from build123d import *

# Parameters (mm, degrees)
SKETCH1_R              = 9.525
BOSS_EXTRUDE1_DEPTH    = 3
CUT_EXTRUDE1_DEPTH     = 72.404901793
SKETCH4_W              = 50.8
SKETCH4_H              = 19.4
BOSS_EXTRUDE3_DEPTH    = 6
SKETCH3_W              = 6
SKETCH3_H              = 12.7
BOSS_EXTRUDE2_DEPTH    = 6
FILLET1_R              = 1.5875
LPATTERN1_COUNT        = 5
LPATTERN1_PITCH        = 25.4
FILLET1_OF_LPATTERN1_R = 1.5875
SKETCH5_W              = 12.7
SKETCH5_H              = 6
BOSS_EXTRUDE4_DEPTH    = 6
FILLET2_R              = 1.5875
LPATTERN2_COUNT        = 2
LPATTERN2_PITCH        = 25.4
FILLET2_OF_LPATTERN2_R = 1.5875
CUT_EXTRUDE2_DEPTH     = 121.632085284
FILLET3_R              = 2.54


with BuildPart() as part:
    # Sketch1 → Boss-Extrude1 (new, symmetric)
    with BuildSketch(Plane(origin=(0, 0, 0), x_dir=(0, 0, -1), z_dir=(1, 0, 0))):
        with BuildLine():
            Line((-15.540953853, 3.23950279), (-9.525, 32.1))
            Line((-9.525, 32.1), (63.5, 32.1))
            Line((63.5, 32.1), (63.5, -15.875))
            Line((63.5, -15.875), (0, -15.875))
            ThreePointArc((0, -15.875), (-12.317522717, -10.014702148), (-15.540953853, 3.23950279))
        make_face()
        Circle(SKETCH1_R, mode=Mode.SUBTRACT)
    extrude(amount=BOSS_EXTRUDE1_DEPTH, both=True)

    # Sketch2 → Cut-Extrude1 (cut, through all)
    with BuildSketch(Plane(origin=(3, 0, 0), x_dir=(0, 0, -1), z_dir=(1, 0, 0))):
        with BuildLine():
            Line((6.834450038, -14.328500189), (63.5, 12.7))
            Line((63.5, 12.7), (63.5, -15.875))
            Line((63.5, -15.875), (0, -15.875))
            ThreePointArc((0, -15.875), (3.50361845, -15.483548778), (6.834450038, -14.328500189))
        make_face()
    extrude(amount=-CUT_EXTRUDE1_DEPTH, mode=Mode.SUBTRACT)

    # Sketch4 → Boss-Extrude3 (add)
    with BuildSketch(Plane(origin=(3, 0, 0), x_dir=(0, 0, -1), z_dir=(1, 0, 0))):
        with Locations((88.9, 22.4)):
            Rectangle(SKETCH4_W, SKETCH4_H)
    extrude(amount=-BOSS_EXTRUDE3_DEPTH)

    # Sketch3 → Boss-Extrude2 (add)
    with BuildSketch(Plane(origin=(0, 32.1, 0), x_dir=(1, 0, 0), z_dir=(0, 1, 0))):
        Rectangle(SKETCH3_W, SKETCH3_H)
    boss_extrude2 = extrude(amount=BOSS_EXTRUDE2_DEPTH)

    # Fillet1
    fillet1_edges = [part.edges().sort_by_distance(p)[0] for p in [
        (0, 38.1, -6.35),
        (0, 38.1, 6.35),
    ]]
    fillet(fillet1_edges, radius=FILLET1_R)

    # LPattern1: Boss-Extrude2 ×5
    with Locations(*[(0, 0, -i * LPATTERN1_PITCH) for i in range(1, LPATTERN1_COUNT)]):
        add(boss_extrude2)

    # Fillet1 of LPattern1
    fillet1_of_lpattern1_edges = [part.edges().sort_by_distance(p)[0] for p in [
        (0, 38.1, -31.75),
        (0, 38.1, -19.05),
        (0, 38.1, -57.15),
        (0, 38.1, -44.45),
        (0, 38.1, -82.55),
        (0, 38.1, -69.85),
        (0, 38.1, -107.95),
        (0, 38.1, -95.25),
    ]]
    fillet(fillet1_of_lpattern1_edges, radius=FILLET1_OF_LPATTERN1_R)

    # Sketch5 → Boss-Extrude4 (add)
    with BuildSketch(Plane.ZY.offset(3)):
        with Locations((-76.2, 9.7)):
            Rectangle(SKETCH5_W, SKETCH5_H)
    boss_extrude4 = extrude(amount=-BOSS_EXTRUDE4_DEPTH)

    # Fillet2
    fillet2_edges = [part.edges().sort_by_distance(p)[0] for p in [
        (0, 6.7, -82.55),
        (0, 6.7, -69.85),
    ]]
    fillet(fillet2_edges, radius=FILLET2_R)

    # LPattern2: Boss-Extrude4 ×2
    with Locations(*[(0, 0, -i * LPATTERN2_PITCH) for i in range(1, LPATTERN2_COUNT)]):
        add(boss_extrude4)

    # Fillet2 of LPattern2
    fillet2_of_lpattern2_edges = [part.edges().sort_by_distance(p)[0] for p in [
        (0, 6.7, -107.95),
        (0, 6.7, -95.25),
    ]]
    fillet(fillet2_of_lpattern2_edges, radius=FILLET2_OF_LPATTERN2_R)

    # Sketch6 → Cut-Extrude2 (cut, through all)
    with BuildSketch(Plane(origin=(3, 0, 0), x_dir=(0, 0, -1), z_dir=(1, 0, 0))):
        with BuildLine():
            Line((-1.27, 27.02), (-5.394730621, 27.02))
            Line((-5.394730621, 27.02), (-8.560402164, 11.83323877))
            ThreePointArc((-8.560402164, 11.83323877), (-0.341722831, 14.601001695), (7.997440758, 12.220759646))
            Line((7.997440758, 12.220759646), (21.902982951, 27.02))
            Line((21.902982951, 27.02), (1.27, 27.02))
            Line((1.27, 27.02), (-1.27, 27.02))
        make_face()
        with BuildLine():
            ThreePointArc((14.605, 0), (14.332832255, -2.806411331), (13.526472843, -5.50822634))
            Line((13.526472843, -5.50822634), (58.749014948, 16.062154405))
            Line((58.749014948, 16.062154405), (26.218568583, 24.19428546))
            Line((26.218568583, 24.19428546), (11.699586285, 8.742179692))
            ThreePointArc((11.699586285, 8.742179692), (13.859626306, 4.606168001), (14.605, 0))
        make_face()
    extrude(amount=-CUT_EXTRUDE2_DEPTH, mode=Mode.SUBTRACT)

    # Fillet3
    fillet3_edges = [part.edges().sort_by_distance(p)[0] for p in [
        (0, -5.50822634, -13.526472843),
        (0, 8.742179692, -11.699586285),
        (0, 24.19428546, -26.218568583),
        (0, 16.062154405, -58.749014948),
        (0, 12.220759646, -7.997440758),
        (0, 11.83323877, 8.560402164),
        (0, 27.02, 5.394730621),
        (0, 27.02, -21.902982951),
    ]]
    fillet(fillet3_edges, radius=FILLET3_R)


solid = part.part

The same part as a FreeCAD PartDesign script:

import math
import FreeCAD as App
import Part
import Sketcher
from FreeCAD import Vector
Q = App.Units.Quantity


def edges_at(feature, points):
    """Names of the edges that pass closest to the given points."""
    edges = feature.Shape.Edges
    near = lambda p: min(range(len(edges)), key=lambda i: edges[i].distToShape(Part.Vertex(*p))[0])
    return sorted({f"Edge{near(p) + 1}" for p in points})


def add_polygon(sketch, points):
    """Adds a closed chain of lines whose ends are joined by coincident constraints."""
    first, n = sketch.GeometryCount, len(points)
    for a, b in zip(points, points[1:] + points[:1]):
        sketch.addGeometry(Part.LineSegment(App.Vector(*a, 0), App.Vector(*b, 0)), False)
    for i in range(n):
        sketch.addConstraint(Sketcher.Constraint("Coincident", first + i, 2, first + (i + 1) % n, 1))

doc = App.newDocument("Part")
body = doc.addObject("PartDesign::Body", "Body")

# Sketch on YZ plane
sketch1 = doc.addObject("Sketcher::SketchObject", "Sketch")
body.addObject(sketch1)
sketch1.AttachmentSupport = (doc.YZ_Plane, [""])
sketch1.MapMode = "FlatFace"
sketch1.addGeometry([
    Part.LineSegment(Vector(32, 10, 0), Vector(3, 16, 0)),  # 0
    Part.ArcOfCircle(Part.Circle(Vector(0, 0, 0), Vector(0, 0, 1), 16), math.radians(78), math.radians(180)),  # 1
    Part.LineSegment(Vector(-16, 0, 0), Vector(-16, -64, 0)),  # 2
    Part.LineSegment(Vector(-16, -64, 0), Vector(32, -64, 0)),  # 3
    Part.LineSegment(Vector(32, -64, 0), Vector(32, 10, 0)),  # 4
    Part.Circle(Vector(0, 0, 0), Vector(0, 0, 1), 10),  # 5
], False)
sketch1.addConstraint([
    Sketcher.Constraint("Tangent", 0, 2, 1, 1),
    Sketcher.Constraint("Tangent", 1, 2, 2, 1),
    Sketcher.Constraint("Coincident", 2, 2, 3, 1),
    Sketcher.Constraint("Coincident", 3, 2, 4, 1),
    Sketcher.Constraint("Coincident", 4, 2, 0, 1),
    Sketcher.Constraint("Vertical", 2),
    Sketcher.Constraint("Horizontal", 3),
    Sketcher.Constraint("Vertical", 4),
    Sketcher.Constraint("Coincident", 1, 3, -1, 1),
    Sketcher.Constraint("Coincident", 5, 3, -1, 1),
    Sketcher.Constraint("Diameter", 5, Q("0.75 in")),
    Sketcher.Constraint("DistanceY", 2, 2, 2, 1, Q("2.5 in")),
    Sketcher.Constraint("Radius", 1, Q("0.625 in")),
    Sketcher.Constraint("DistanceY", 4, 1, 4, 2, Q("2.875 in")),
    Sketcher.Constraint("DistanceX", 3, 1, 3, 2, Q("47.975 mm")),
])
pad1 = doc.addObject("PartDesign::Pad", "Pad")
body.addObject(pad1)
pad1.Profile = sketch1
pad1.Length = 6
pad1.Midplane = True

# Sketch on YZ plane
sketch2 = doc.addObject("Sketcher::SketchObject", "Sketch001")
body.addObject(sketch2)
sketch2.AttachmentSupport = (doc.YZ_Plane, [""])
sketch2.MapMode = "FlatFace"
sketch2.AttachmentOffset = App.Placement(Vector(0, 0, 3), App.Rotation())
sketch2.addGeometry([
    Part.LineSegment(Vector(13, -64, 0), Vector(-14, -7, 0)),
    Part.ArcOfCircle(Part.Circle(Vector(0, 0, 0), Vector(0, 0, 1), 16), math.radians(180), math.radians(206)),
    Part.LineSegment(Vector(-16, 0, 0), Vector(-16, -64, 0)),
    Part.LineSegment(Vector(-16, -64, 0), Vector(13, -64, 0)),
], False)
sketch2.addConstraint([
    Sketcher.Constraint("Tangent", 0, 2, 1, 2),
    Sketcher.Constraint("Tangent", 1, 1, 2, 1),
    Sketcher.Constraint("Coincident", 2, 2, 3, 1),
    Sketcher.Constraint("Coincident", 3, 2, 0, 1),
    Sketcher.Constraint("Vertical", 2),
    Sketcher.Constraint("Horizontal", 3),
    Sketcher.Constraint("Coincident", 1, 3, -1, 1),
    Sketcher.Constraint("DistanceY", 2, 2, 2, 1, Q("2.5 in")),
    Sketcher.Constraint("Radius", 1, Q("0.625 in")),
    Sketcher.Constraint("DistanceX", -1, 1, 3, 2, Q("0.5 in")),
])
pocket1 = doc.addObject("PartDesign::Pocket", "Pocket")
body.addObject(pocket1)
pocket1.Profile = sketch2
pocket1.Type = "ThroughAll"

# Sketch on YZ plane
sketch3 = doc.addObject("Sketcher::SketchObject", "Sketch002")
body.addObject(sketch3)
sketch3.AttachmentSupport = (doc.YZ_Plane, [""])
sketch3.MapMode = "FlatFace"
sketch3.AttachmentOffset = App.Placement(Vector(0, 0, 3), App.Rotation())
add_polygon(sketch3, [(32, -64), (13, -64), (13, -114), (32, -114)])  # lines 0-3
sketch3.addConstraint([
    Sketcher.Constraint("Horizontal", 0),
    Sketcher.Constraint("Vertical", 1),
    Sketcher.Constraint("Horizontal", 2),
    Sketcher.Constraint("Vertical", 3),
    Sketcher.Constraint("DistanceY", 1, 2, 1, 1, Q("2 in")),
    Sketcher.Constraint("DistanceX", -1, 1, 0, 2, Q("0.5 in")),
    Sketcher.Constraint("DistanceY", 0, 2, -1, 1, Q("2.5 in")),
    Sketcher.Constraint("DistanceX", 0, 2, 0, 1, Q("19.4 mm")),
])
pad2 = doc.addObject("PartDesign::Pad", "Pad001")
body.addObject(pad2)
pad2.Profile = sketch3
pad2.Length = 6
pad2.Reversed = True

# Sketch on XZ plane
sketch4 = doc.addObject("Sketcher::SketchObject", "Sketch003")
body.addObject(sketch4)
sketch4.AttachmentSupport = (doc.XZ_Plane, [""])
sketch4.MapMode = "FlatFace"
sketch4.AttachmentOffset = App.Placement(Vector(0, 0, -32.1), App.Rotation())
add_polygon(sketch4, [(-3, -6), (-3, 6), (3, 6), (3, -6)])  # lines 0-3
sketch4.addConstraint([
    Sketcher.Constraint("Vertical", 0),
    Sketcher.Constraint("Horizontal", 1),
    Sketcher.Constraint("Vertical", 2),
    Sketcher.Constraint("Horizontal", 3),
    Sketcher.Constraint("Symmetric", 0, 2, 2, 2, -1, 1),
    Sketcher.Constraint("DistanceY", 0, 1, 0, 2, Q("0.5 in")),
    Sketcher.Constraint("DistanceX", 1, 1, 1, 2, Q("6 mm")),
])
pad3 = doc.addObject("PartDesign::Pad", "Pad002")
body.addObject(pad3)
pad3.Profile = sketch4
pad3.Length = 6
pad3.Reversed = True
doc.recompute()

fillet = doc.addObject("PartDesign::Fillet", "Fillet")
body.addObject(fillet)
fillet.Base = (pad3, edges_at(pad3, [(0, 38.1, -6.35), (0, 38.1, 6.35)]))
fillet.Radius = Q("0.0625 in")
doc.recompute()

linearpattern = doc.addObject("PartDesign::LinearPattern", "LinearPattern")
body.addObject(linearpattern)
linearpattern.Originals = [pad3]
linearpattern.Direction = (doc.Z_Axis, [""])
linearpattern.Mode = "offset"
linearpattern.Offset = Q("1 in")
linearpattern.Occurrences = 5
linearpattern.Reversed = True
body.Tip = linearpattern
doc.recompute()

fillet2 = doc.addObject("PartDesign::Fillet", "Fillet001")
body.addObject(fillet2)
fillet2.Base = (linearpattern, edges_at(linearpattern, [
    (0, 38.1, -31.75),
    (0, 38.1, -19.05),
    (0, 38.1, -57.15),
    (0, 38.1, -44.45),
    (0, 38.1, -82.55),
    (0, 38.1, -69.85),
    (0, 38.1, -107.95),
    (0, 38.1, -95.25),
]))
fillet2.Radius = Q("0.0625 in")

# Sketch on YZ plane
sketch5 = doc.addObject("Sketcher::SketchObject", "Sketch004")
body.addObject(sketch5)
sketch5.AttachmentSupport = (doc.YZ_Plane, [""])
sketch5.MapMode = "FlatFace"
sketch5.AttachmentOffset = App.Placement(Vector(0, 0, -3), App.Rotation())
add_polygon(sketch5, [(13, -83), (7, -83), (7, -70), (13, -70)])  # lines 0-3
sketch5.addConstraint([
    Sketcher.Constraint("Horizontal", 0),
    Sketcher.Constraint("Vertical", 1),
    Sketcher.Constraint("Horizontal", 2),
    Sketcher.Constraint("Vertical", 3),
    Sketcher.Constraint("DistanceY", 1, 1, 1, 2, Q("0.5 in")),
    Sketcher.Constraint("DistanceX", -1, 1, 2, 2, Q("0.5 in")),
    Sketcher.Constraint("DistanceY", 0, 2, -1, 1, Q("3.25 in")),
    Sketcher.Constraint("DistanceX", 0, 2, 0, 1, Q("6 mm")),
])
pad4 = doc.addObject("PartDesign::Pad", "Pad003")
body.addObject(pad4)
pad4.Profile = sketch5
pad4.Length = 6
doc.recompute()

fillet3 = doc.addObject("PartDesign::Fillet", "Fillet002")
body.addObject(fillet3)
fillet3.Base = (pad4, edges_at(pad4, [(0, 6.7, -82.55), (0, 6.7, -69.85)]))
fillet3.Radius = Q("0.0625 in")
doc.recompute()

linearpattern2 = doc.addObject("PartDesign::LinearPattern", "LinearPattern001")
body.addObject(linearpattern2)
linearpattern2.Originals = [pad4]
linearpattern2.Direction = (doc.Z_Axis, [""])
linearpattern2.Mode = "offset"
linearpattern2.Offset = Q("1 in")
linearpattern2.Occurrences = 2
linearpattern2.Reversed = True
body.Tip = linearpattern2
doc.recompute()

fillet4 = doc.addObject("PartDesign::Fillet", "Fillet003")
body.addObject(fillet4)
fillet4.Base = (linearpattern2, edges_at(linearpattern2, [(0, 6.7, -107.95), (0, 6.7, -95.25)]))
fillet4.Radius = Q("0.0625 in")

# Sketch on YZ plane
sketch6 = doc.addObject("Sketcher::SketchObject", "Sketch005")
body.addObject(sketch6)
sketch6.AttachmentSupport = (doc.YZ_Plane, [""])
sketch6.MapMode = "FlatFace"
sketch6.AttachmentOffset = App.Placement(Vector(0, 0, 3), App.Rotation())
sketch6.addGeometry([
    Part.LineSegment(Vector(27, 5, 0), Vector(12, 9, 0)),  # 0
    Part.ArcOfCircle(Part.Circle(Vector(0, 0, 0), Vector(0, 0, 1), 15), math.radians(-33), math.radians(36)),  # 1
    Part.LineSegment(Vector(12, -8, 0), Vector(27, -22, 0)),  # 2
    Part.LineSegment(Vector(27, -22, 0), Vector(27, 5, 0)),  # 3
    Part.ArcOfCircle(Part.Circle(Vector(0, 0, 0), Vector(0, 0, 1), 15), math.radians(-112), math.radians(-90)),  # 4
    Part.LineSegment(Vector(-6, -14, 0), Vector(16, -59, 0)),  # 5
    Part.LineSegment(Vector(16, -59, 0), Vector(24, -26, 0)),  # 6
    Part.LineSegment(Vector(24, -26, 0), Vector(9, -12, 0)),  # 7
    Part.ArcOfCircle(Part.Circle(Vector(0, 0, 0), Vector(0, 0, 1), 15), math.radians(-90), math.radians(-53)),  # 8
], False)
sketch6.addConstraint([
    Sketcher.Constraint("Coincident", 0, 2, 1, 2),
    Sketcher.Constraint("Coincident", 1, 1, 2, 1),
    Sketcher.Constraint("Coincident", 2, 2, 3, 1),
    Sketcher.Constraint("Coincident", 3, 2, 0, 1),
    Sketcher.Constraint("Coincident", 4, 1, 5, 1),
    Sketcher.Constraint("Coincident", 5, 2, 6, 1),
    Sketcher.Constraint("Coincident", 6, 2, 7, 1),
    Sketcher.Constraint("Coincident", 7, 2, 8, 2),
    Sketcher.Constraint("Tangent", 8, 1, 4, 2),
    Sketcher.Constraint("Vertical", 3),
    Sketcher.Constraint("Coincident", 1, 3, -1, 1),
    Sketcher.Constraint("Coincident", 4, 3, -1, 1),
    Sketcher.Constraint("Equal", 1, 4),
    Sketcher.Constraint("Equal", 4, 8),
    Sketcher.Constraint("PointOnObject", 8, 1, -2),
    Sketcher.Constraint("Parallel", 2, 7),
    Sketcher.Constraint("Radius", 1, Q("0.575 in")),
    Sketcher.Constraint("Distance", 6, Q("33.5315 mm")),
    Sketcher.Constraint("DistanceX", -1, 1, 2, 2, Q("27.02 mm")),
    Sketcher.Constraint("DistanceY", 6, 2, 3, 2, Q("31.613299 mm")),
    Sketcher.Constraint("Distance", 2, Q("20.307181 mm")),
    Sketcher.Constraint("Distance", 5, Q("50.103489 mm")),
    Sketcher.Constraint("Distance", 7, Q("21.203029 mm")),
    Sketcher.Constraint("DistanceY", 3, 1, 3, 2, Q("27.297714 mm")),
    Sketcher.Constraint("DistanceX", -1, 1, 0, 2, Q("11.833239 mm")),
    Sketcher.Constraint("DistanceX", -1, 1, 1, 1, Q("12.22076 mm")),
    Sketcher.Constraint("DistanceY", 5, 2, 2, 2, Q("36.846032 mm")),
])
pocket2 = doc.addObject("PartDesign::Pocket", "Pocket001")
body.addObject(pocket2)
pocket2.Profile = sketch6
pocket2.Type = "ThroughAll"
doc.recompute()

fillet5 = doc.addObject("PartDesign::Fillet", "Fillet004")
body.addObject(fillet5)
fillet5.Base = (pocket2, edges_at(pocket2, [
    (0, -5.508, -13.526),
    (0, 8.742, -11.7),
    (0, 24.194, -26.219),
    (0, 16.062, -58.749),
    (0, 12.221, -7.997),
    (0, 11.833, 8.56),
    (0, 27.02, 5.395),
    (0, 27.02, -21.903),
]))
fillet5.Radius = Q("0.1 in")

doc.recompute()
